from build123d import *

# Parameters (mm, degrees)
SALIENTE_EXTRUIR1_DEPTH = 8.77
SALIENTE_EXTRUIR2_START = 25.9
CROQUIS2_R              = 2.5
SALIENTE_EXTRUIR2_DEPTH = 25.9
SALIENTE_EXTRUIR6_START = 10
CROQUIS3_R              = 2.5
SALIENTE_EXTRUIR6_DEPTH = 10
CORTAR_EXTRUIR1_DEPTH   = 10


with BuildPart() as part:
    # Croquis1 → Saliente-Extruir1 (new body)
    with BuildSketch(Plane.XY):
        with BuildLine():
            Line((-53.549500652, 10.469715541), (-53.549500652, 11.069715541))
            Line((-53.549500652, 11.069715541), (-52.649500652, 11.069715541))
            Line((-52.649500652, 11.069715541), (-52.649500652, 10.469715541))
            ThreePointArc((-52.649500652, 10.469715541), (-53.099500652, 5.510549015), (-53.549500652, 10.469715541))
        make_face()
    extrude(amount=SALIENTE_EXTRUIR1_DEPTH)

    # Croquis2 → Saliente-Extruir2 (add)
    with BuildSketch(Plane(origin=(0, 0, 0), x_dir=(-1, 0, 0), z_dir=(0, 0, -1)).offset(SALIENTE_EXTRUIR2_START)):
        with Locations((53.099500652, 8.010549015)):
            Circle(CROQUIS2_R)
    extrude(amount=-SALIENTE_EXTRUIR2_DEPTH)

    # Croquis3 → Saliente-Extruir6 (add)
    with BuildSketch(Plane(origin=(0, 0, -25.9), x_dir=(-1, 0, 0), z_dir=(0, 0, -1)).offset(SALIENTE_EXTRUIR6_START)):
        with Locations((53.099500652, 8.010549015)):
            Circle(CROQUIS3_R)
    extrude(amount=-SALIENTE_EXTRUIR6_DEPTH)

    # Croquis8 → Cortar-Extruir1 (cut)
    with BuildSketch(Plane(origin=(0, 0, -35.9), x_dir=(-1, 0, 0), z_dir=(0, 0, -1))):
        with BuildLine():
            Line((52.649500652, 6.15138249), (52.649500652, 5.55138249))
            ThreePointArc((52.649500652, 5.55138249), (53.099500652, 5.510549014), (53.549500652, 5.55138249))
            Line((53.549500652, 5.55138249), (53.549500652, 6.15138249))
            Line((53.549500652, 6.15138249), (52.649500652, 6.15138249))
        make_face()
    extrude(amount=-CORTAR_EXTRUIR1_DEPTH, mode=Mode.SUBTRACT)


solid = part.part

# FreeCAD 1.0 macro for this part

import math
import FreeCAD as App
import Part
import Sketcher
Q = App.Units.Quantity

doc = App.newDocument("Part")
params = doc.addObject("Spreadsheet::Sheet", "Params")
for row, (alias, value) in enumerate([
    ("sketch1_radius", "2.5 mm"),
    ("sketch1_width", "0.9 mm"),
    ("sketch1_height", "0.6 mm"),
    ("pad1_length", "8.77 mm"),
    ("sketch2_diameter", "5 mm"),
    ("pad2_length", "25.9 mm"),
    ("sketch3_diameter", "5 mm"),
    ("pad3_length", "10 mm"),
    ("sketch4_radius", "2.5 mm"),
    ("sketch4_width", "0.9 mm"),
    ("sketch4_height", "0.6 mm"),
    ("pocket1_length", "10 mm"),
], start=1):
    params.set(f"A{row}", alias)
    params.set(f"B{row}", "=" + value)
    params.setAlias(f"B{row}", alias)

body = doc.addObject("PartDesign::Body", "Body")

sketch1 = body.newObject("Sketcher::SketchObject", "Sketch")
sketch1.AttachmentSupport = (doc.getObject("XY_Plane"), [""])
sketch1.MapMode = "FlatFace"
sketch1.addGeometry([
    Part.LineSegment(App.Vector(-53.5, 11.1, 0), App.Vector(-53.5, 10.5, 0)),
    Part.ArcOfCircle(Part.Circle(App.Vector(-53.1, 8, 0), App.Vector(0, 0, 1), 2.5), math.radians(100), math.radians(440)),
    Part.LineSegment(App.Vector(-52.6, 10.5, 0), App.Vector(-52.6, 11.1, 0)),
    Part.LineSegment(App.Vector(-52.6, 11.1, 0), App.Vector(-53.5, 11.1, 0)),
], False)
sketch1.addConstraint([
    Sketcher.Constraint("Coincident", 0, 2, 1, 1),
    Sketcher.Constraint("Coincident", 1, 2, 2, 1),
    Sketcher.Constraint("Coincident", 2, 2, 3, 1),
    Sketcher.Constraint("Coincident", 3, 2, 0, 1),
    Sketcher.Constraint("Vertical", 0),
    Sketcher.Constraint("Vertical", 2),
    Sketcher.Constraint("Horizontal", 3),
    Sketcher.Constraint("Horizontal", 0, 2, 1, 2),
    Sketcher.Constraint("Radius", 1, Q("2.5 mm")),
    Sketcher.Constraint("DistanceX", 3, 2, 3, 1, Q("0.9 mm")),
    Sketcher.Constraint("DistanceY", 0, 2, 0, 1, Q("0.6 mm")),
    Sketcher.Constraint("DistanceX", 1, 3, -1, 1, Q("53.099501 mm")),
    Sketcher.Constraint("DistanceY", -1, 1, 1, 3, Q("8.010549 mm")),
])
sketch1.setExpression("Constraints[8]", "Params.sketch1_radius")
sketch1.setExpression("Constraints[9]", "Params.sketch1_width")
sketch1.setExpression("Constraints[10]", "Params.sketch1_height")
pad1 = body.newObject("PartDesign::Pad", "Pad")
pad1.Profile = sketch1
pad1.setExpression("Length", "Params.pad1_length")

sketch2 = body.newObject("Sketcher::SketchObject", "Sketch001")
sketch2.AttachmentSupport = (doc.getObject("XY_Plane"), [""])
sketch2.MapMode = "FlatFace"
sketch2.AttachmentOffset = App.Placement(App.Vector(0, 0, -25.9), App.Rotation())
sketch2.addGeometry(Part.Circle(App.Vector(-53.1, 8, 0), App.Vector(0, 0, 1), 2.5), False)
sketch2.addConstraint([
    Sketcher.Constraint("Diameter", 0, Q("5 mm")),
    Sketcher.Constraint("DistanceX", 0, 3, -1, 1, Q("53.099501 mm")),
    Sketcher.Constraint("DistanceY", -1, 1, 0, 3, Q("8.010549 mm")),
])
sketch2.setExpression("Constraints[0]", "Params.sketch2_diameter")
pad2 = body.newObject("PartDesign::Pad", "Pad001")
pad2.Profile = sketch2
pad2.setExpression("Length", "Params.pad2_length")

sketch3 = body.newObject("Sketcher::SketchObject", "Sketch002")
sketch3.AttachmentSupport = (doc.getObject("XY_Plane"), [""])
sketch3.MapMode = "FlatFace"
sketch3.AttachmentOffset = App.Placement(App.Vector(0, 0, -35.9), App.Rotation())
sketch3.addGeometry(Part.Circle(App.Vector(-53.1, 8, 0), App.Vector(0, 0, 1), 2.5), False)
sketch3.addConstraint([
    Sketcher.Constraint("Diameter", 0, Q("5 mm")),
    Sketcher.Constraint("DistanceX", 0, 3, -1, 1, Q("53.099501 mm")),
    Sketcher.Constraint("DistanceY", -1, 1, 0, 3, Q("8.010549 mm")),
])
sketch3.setExpression("Constraints[0]", "Params.sketch3_diameter")
pad3 = body.newObject("PartDesign::Pad", "Pad002")
pad3.Profile = sketch3
pad3.setExpression("Length", "Params.pad3_length")

sketch4 = body.newObject("Sketcher::SketchObject", "Sketch003")
sketch4.AttachmentSupport = (doc.getObject("XY_Plane"), [""])
sketch4.MapMode = "FlatFace"
sketch4.AttachmentOffset = App.Placement(App.Vector(0, 0, -35.9), App.Rotation())
sketch4.addGeometry([
    Part.LineSegment(App.Vector(-52.6, 6.2, 0), App.Vector(-52.6, 5.6, 0)),
    Part.ArcOfCircle(Part.Circle(App.Vector(-53.1, 8, 0), App.Vector(0, 0, 1), 2.5), math.radians(-100), math.radians(-80)),
    Part.LineSegment(App.Vector(-53.5, 5.6, 0), App.Vector(-53.5, 6.2, 0)),
    Part.LineSegment(App.Vector(-53.5, 6.2, 0), App.Vector(-52.6, 6.2, 0)),
], False)
sketch4.addConstraint([
    Sketcher.Constraint("Coincident", 0, 2, 1, 2),
    Sketcher.Constraint("Coincident", 1, 1, 2, 1),
    Sketcher.Constraint("Coincident", 2, 2, 3, 1),
    Sketcher.Constraint("Coincident", 3, 2, 0, 1),
    Sketcher.Constraint("Vertical", 0),
    Sketcher.Constraint("Vertical", 2),
    Sketcher.Constraint("Horizontal", 3),
    Sketcher.Constraint("Horizontal", 0, 2, 1, 1),
    Sketcher.Constraint("Radius", 1, Q("2.5 mm")),
    Sketcher.Constraint("DistanceX", 3, 1, 3, 2, Q("0.9 mm")),
    Sketcher.Constraint("DistanceY", 0, 2, 0, 1, Q("0.6 mm")),
    Sketcher.Constraint("DistanceX", 1, 3, -1, 1, Q("53.099501 mm")),
    Sketcher.Constraint("DistanceY", -1, 1, 1, 3, Q("8.010549 mm")),
])
sketch4.setExpression("Constraints[8]", "Params.sketch4_radius")
sketch4.setExpression("Constraints[9]", "Params.sketch4_width")
sketch4.setExpression("Constraints[10]", "Params.sketch4_height")
pocket1 = body.newObject("PartDesign::Pocket", "Pocket")
pocket1.Profile = sketch4
pocket1.setExpression("Length", "Params.pocket1_length")
pocket1.Reversed = True

doc.recompute()
